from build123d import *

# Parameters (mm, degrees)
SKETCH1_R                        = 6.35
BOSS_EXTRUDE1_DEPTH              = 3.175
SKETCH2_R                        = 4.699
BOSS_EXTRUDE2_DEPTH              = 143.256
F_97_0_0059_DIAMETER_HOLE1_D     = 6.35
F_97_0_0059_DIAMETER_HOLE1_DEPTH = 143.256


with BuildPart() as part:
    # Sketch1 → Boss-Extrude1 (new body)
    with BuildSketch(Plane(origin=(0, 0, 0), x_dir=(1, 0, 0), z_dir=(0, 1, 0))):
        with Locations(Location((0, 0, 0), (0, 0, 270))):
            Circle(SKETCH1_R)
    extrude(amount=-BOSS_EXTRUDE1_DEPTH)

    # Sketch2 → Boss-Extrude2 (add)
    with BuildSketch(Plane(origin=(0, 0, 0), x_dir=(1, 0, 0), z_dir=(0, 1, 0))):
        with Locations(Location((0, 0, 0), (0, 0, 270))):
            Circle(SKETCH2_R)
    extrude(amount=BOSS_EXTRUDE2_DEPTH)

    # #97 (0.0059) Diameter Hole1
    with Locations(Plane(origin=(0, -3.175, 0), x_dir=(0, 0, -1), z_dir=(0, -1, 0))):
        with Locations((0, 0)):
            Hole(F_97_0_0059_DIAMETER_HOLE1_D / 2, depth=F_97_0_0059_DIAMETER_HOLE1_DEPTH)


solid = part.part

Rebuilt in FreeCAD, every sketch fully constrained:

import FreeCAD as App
import Part
import Sketcher
Q = App.Units.Quantity

doc = App.newDocument("Part")
params = doc.addObject("Spreadsheet::Sheet", "Params")
for row, (alias, value) in enumerate([
    ("sketch1_diameter", "0.5 in"),
    ("pad1_length", "0.125 in"),
    ("sketch2_diameter", "0.37 in"),
    ("pad2_length", "5.64 in"),
    ("sketch3_diameter", "0.25 in"),
    ("hole_diameter", "0.25 in"),
    ("hole_depth", "5.64 in"),
], start=1):
    params.set(f"A{row}", alias)
    params.set(f"B{row}", "=" + value)
    params.setAlias(f"B{row}", alias)

body = doc.addObject("PartDesign::Body", "Body")

sketch1 = doc.addObject("Sketcher::SketchObject", "Sketch")
body.addObject(sketch1)
sketch1.AttachmentSupport = (doc.XZ_Plane, [""])
sketch1.MapMode = "FlatFace"
sketch1.addGeometry(Part.Circle(App.Vector(0, 0, 0), App.Vector(0, 0, 1), 6), False)
sketch1.addConstraint([
    Sketcher.Constraint("Coincident", 0, 3, -1, 1),
    Sketcher.Constraint("Diameter", 0, Q("0.5 in")),
])
sketch1.setExpression("Constraints[1]", "Params.sketch1_diameter")
pad1 = doc.addObject("PartDesign::Pad", "Pad")
body.addObject(pad1)
pad1.Profile = sketch1
pad1.setExpression("Length", "Params.pad1_length")

sketch2 = doc.addObject("Sketcher::SketchObject", "Sketch001")
body.addObject(sketch2)
sketch2.AttachmentSupport = (doc.XZ_Plane, [""])
sketch2.MapMode = "FlatFace"
sketch2.addGeometry(Part.Circle(App.Vector(0, 0, 0), App.Vector(0, 0, 1), 4.7), False)
sketch2.addConstraint([
    Sketcher.Constraint("Coincident", 0, 3, -1, 1),
    Sketcher.Constraint("Diameter", 0, Q("0.37 in")),
])
sketch2.setExpression("Constraints[1]", "Params.sketch2_diameter")
pad2 = doc.addObject("PartDesign::Pad", "Pad001")
body.addObject(pad2)
pad2.Profile = sketch2
pad2.setExpression("Length", "Params.pad2_length")
pad2.Reversed = True

sketch3 = doc.addObject("Sketcher::SketchObject", "Sketch002")
body.addObject(sketch3)
sketch3.AttachmentSupport = (doc.XZ_Plane, [""])
sketch3.MapMode = "FlatFace"
sketch3.AttachmentOffset = App.Placement(App.Vector(0, 0, 0.125 * 25.4), App.Rotation())
sketch3.addGeometry(Part.Circle(App.Vector(0, 0, 0), App.Vector(0, 0, 1), 3.2), False)
sketch3.addConstraint([
    Sketcher.Constraint("Coincident", 0, 3, -1, 1),
    Sketcher.Constraint("Diameter", 0, Q("0.25 in")),
])
sketch3.setExpression("Constraints[1]", "Params.sketch3_diameter")
doc.recompute()
hole = doc.addObject("PartDesign::Hole", "Hole")
body.addObject(hole)
hole.Profile = sketch3
hole.ThreadType = "None"
hole.setExpression("Diameter", "Params.hole_diameter")
hole.DepthType = "Dimension"
hole.setExpression("Depth", "Params.hole_depth")
hole.DrillPoint = "Flat"

doc.recompute()
